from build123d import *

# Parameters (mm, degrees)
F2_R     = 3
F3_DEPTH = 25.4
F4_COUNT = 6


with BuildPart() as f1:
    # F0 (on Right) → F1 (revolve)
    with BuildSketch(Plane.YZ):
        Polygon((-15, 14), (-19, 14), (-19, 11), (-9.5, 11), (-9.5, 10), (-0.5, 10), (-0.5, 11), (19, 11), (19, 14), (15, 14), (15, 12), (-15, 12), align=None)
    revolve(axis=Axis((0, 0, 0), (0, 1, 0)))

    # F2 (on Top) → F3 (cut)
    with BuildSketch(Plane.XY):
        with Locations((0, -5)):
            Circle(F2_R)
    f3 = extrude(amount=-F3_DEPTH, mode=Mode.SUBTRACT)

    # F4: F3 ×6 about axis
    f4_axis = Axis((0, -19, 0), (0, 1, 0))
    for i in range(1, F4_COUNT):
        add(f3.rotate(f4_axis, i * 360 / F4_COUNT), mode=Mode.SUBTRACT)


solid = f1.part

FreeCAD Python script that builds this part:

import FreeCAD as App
import Part
import Sketcher
from FreeCAD import Vector

doc = App.newDocument("Part")
body = doc.addObject("PartDesign::Body", "Body")

# Sketch on YZ plane
sketch1 = body.newObject("Sketcher::SketchObject", "Sketch")
sketch1.AttachmentSupport = (doc.getObject("YZ_Plane"), [""])
sketch1.MapMode = "FlatFace"
sketch1.addGeometry(Part.LineSegment(Vector(-15, 14, 0), Vector(-19, 14, 0)), False)
sketch1.addGeometry(Part.LineSegment(Vector(-19, 14, 0), Vector(-19, 11, 0)), False)
sketch1.addGeometry(Part.LineSegment(Vector(-19, 11, 0), Vector(-9.5, 11, 0)), False)
sketch1.addGeometry(Part.LineSegment(Vector(-9.5, 11, 0), Vector(-9.5, 10, 0)), False)
sketch1.addGeometry(Part.LineSegment(Vector(-9.5, 10, 0), Vector(-0.5, 10, 0)), False)
sketch1.addGeometry(Part.LineSegment(Vector(-0.5, 10, 0), Vector(-0.5, 11, 0)), False)
sketch1.addGeometry(Part.LineSegment(Vector(-0.5, 11, 0), Vector(19, 11, 0)), False)
sketch1.addGeometry(Part.LineSegment(Vector(19, 11, 0), Vector(19, 14, 0)), False)
sketch1.addGeometry(Part.LineSegment(Vector(19, 14, 0), Vector(15, 14, 0)), False)
sketch1.addGeometry(Part.LineSegment(Vector(15, 14, 0), Vector(15, 12, 0)), False)
sketch1.addGeometry(Part.LineSegment(Vector(15, 12, 0), Vector(-15, 12, 0)), False)
sketch1.addGeometry(Part.LineSegment(Vector(-15, 12, 0), Vector(-15, 14, 0)), False)
sketch1.addConstraint(Sketcher.Constraint("Coincident", 0, 2, 1, 1))
sketch1.addConstraint(Sketcher.Constraint("Coincident", 1, 2, 2, 1))
sketch1.addConstraint(Sketcher.Constraint("Coincident", 2, 2, 3, 1))
sketch1.addConstraint(Sketcher.Constraint("Coincident", 3, 2, 4, 1))
sketch1.addConstraint(Sketcher.Constraint("Coincident", 4, 2, 5, 1))
sketch1.addConstraint(Sketcher.Constraint("Coincident", 5, 2, 6, 1))
sketch1.addConstraint(Sketcher.Constraint("Coincident", 6, 2, 7, 1))
sketch1.addConstraint(Sketcher.Constraint("Coincident", 7, 2, 8, 1))
sketch1.addConstraint(Sketcher.Constraint("Coincident", 8, 2, 9, 1))
sketch1.addConstraint(Sketcher.Constraint("Coincident", 9, 2, 10, 1))
sketch1.addConstraint(Sketcher.Constraint("Coincident", 10, 2, 11, 1))
sketch1.addConstraint(Sketcher.Constraint("Coincident", 11, 2, 0, 1))
sketch1.addConstraint(Sketcher.Constraint("Horizontal", 0))
sketch1.addConstraint(Sketcher.Constraint("Vertical", 1))
sketch1.addConstraint(Sketcher.Constraint("Horizontal", 2))
sketch1.addConstraint(Sketcher.Constraint("Vertical", 3))
sketch1.addConstraint(Sketcher.Constraint("Horizontal", 4))
sketch1.addConstraint(Sketcher.Constraint("Vertical", 5))
sketch1.addConstraint(Sketcher.Constraint("Horizontal", 6))
sketch1.addConstraint(Sketcher.Constraint("Vertical", 7))
sketch1.addConstraint(Sketcher.Constraint("Horizontal", 8))
sketch1.addConstraint(Sketcher.Constraint("Vertical", 9))
sketch1.addConstraint(Sketcher.Constraint("Horizontal", 10))
sketch1.addConstraint(Sketcher.Constraint("Vertical", 11))
sketch1.addConstraint(Sketcher.Constraint("Symmetric", 1, 2, 6, 2, -2))
sketch1.addConstraint(Sketcher.Constraint("Symmetric", 8, 2, 11, 2, -2))
sketch1.addConstraint(Sketcher.Constraint("DistanceX", 0, 2, 0, 1, 4.0))
sketch1.addConstraint(Sketcher.Constraint("DistanceX", 4, 1, 4, 2, 9.0))
sketch1.addConstraint(Sketcher.Constraint("DistanceX", 10, 2, 10, 1, 30.0))
sketch1.addConstraint(Sketcher.Constraint("DistanceY", 1, 2, 1, 1, 3.0))
sketch1.addConstraint(Sketcher.Constraint("DistanceY", 3, 2, 3, 1, 1.0))
sketch1.addConstraint(Sketcher.Constraint("DistanceY", 9, 2, 9, 1, 2.0))
sketch1.addConstraint(Sketcher.Constraint("DistanceX", 2, 1, 2, 2, 9.5))
sketch1.addConstraint(Sketcher.Constraint("DistanceY", -1, 1, 0, 2, 14.0))
revolution = body.newObject("PartDesign::Revolution", "Revolution")
revolution.Profile = sketch1
revolution.ReferenceAxis = (sketch1, ["H_Axis"])
revolution.Angle = 360

# Sketch on XY plane
sketch2 = body.newObject("Sketcher::SketchObject", "Sketch001")
sketch2.AttachmentSupport = (doc.getObject("XY_Plane"), [""])
sketch2.MapMode = "FlatFace"
sketch2.addGeometry(Part.Circle(Vector(0, -5, 0), Vector(0, 0, 1), 3), False)
sketch2.addConstraint(Sketcher.Constraint("PointOnObject", 0, 3, -2))
sketch2.addConstraint(Sketcher.Constraint("Diameter", 0, 6.0))
sketch2.addConstraint(Sketcher.Constraint("DistanceY", 0, 3, -1, 1, 5.0))
pocket1 = body.newObject("PartDesign::Pocket", "Pocket")
pocket1.Profile = sketch2
pocket1.Length = 25.4
doc.recompute()

polarpattern = body.newObject("PartDesign::PolarPattern", "PolarPattern")
polarpattern.Originals = [pocket1]
polarpattern.Axis = (doc.getObject("Y_Axis"), [""])
polarpattern.Angle = 360
polarpattern.Occurrences = 6
body.Tip = polarpattern

doc.recompute()
